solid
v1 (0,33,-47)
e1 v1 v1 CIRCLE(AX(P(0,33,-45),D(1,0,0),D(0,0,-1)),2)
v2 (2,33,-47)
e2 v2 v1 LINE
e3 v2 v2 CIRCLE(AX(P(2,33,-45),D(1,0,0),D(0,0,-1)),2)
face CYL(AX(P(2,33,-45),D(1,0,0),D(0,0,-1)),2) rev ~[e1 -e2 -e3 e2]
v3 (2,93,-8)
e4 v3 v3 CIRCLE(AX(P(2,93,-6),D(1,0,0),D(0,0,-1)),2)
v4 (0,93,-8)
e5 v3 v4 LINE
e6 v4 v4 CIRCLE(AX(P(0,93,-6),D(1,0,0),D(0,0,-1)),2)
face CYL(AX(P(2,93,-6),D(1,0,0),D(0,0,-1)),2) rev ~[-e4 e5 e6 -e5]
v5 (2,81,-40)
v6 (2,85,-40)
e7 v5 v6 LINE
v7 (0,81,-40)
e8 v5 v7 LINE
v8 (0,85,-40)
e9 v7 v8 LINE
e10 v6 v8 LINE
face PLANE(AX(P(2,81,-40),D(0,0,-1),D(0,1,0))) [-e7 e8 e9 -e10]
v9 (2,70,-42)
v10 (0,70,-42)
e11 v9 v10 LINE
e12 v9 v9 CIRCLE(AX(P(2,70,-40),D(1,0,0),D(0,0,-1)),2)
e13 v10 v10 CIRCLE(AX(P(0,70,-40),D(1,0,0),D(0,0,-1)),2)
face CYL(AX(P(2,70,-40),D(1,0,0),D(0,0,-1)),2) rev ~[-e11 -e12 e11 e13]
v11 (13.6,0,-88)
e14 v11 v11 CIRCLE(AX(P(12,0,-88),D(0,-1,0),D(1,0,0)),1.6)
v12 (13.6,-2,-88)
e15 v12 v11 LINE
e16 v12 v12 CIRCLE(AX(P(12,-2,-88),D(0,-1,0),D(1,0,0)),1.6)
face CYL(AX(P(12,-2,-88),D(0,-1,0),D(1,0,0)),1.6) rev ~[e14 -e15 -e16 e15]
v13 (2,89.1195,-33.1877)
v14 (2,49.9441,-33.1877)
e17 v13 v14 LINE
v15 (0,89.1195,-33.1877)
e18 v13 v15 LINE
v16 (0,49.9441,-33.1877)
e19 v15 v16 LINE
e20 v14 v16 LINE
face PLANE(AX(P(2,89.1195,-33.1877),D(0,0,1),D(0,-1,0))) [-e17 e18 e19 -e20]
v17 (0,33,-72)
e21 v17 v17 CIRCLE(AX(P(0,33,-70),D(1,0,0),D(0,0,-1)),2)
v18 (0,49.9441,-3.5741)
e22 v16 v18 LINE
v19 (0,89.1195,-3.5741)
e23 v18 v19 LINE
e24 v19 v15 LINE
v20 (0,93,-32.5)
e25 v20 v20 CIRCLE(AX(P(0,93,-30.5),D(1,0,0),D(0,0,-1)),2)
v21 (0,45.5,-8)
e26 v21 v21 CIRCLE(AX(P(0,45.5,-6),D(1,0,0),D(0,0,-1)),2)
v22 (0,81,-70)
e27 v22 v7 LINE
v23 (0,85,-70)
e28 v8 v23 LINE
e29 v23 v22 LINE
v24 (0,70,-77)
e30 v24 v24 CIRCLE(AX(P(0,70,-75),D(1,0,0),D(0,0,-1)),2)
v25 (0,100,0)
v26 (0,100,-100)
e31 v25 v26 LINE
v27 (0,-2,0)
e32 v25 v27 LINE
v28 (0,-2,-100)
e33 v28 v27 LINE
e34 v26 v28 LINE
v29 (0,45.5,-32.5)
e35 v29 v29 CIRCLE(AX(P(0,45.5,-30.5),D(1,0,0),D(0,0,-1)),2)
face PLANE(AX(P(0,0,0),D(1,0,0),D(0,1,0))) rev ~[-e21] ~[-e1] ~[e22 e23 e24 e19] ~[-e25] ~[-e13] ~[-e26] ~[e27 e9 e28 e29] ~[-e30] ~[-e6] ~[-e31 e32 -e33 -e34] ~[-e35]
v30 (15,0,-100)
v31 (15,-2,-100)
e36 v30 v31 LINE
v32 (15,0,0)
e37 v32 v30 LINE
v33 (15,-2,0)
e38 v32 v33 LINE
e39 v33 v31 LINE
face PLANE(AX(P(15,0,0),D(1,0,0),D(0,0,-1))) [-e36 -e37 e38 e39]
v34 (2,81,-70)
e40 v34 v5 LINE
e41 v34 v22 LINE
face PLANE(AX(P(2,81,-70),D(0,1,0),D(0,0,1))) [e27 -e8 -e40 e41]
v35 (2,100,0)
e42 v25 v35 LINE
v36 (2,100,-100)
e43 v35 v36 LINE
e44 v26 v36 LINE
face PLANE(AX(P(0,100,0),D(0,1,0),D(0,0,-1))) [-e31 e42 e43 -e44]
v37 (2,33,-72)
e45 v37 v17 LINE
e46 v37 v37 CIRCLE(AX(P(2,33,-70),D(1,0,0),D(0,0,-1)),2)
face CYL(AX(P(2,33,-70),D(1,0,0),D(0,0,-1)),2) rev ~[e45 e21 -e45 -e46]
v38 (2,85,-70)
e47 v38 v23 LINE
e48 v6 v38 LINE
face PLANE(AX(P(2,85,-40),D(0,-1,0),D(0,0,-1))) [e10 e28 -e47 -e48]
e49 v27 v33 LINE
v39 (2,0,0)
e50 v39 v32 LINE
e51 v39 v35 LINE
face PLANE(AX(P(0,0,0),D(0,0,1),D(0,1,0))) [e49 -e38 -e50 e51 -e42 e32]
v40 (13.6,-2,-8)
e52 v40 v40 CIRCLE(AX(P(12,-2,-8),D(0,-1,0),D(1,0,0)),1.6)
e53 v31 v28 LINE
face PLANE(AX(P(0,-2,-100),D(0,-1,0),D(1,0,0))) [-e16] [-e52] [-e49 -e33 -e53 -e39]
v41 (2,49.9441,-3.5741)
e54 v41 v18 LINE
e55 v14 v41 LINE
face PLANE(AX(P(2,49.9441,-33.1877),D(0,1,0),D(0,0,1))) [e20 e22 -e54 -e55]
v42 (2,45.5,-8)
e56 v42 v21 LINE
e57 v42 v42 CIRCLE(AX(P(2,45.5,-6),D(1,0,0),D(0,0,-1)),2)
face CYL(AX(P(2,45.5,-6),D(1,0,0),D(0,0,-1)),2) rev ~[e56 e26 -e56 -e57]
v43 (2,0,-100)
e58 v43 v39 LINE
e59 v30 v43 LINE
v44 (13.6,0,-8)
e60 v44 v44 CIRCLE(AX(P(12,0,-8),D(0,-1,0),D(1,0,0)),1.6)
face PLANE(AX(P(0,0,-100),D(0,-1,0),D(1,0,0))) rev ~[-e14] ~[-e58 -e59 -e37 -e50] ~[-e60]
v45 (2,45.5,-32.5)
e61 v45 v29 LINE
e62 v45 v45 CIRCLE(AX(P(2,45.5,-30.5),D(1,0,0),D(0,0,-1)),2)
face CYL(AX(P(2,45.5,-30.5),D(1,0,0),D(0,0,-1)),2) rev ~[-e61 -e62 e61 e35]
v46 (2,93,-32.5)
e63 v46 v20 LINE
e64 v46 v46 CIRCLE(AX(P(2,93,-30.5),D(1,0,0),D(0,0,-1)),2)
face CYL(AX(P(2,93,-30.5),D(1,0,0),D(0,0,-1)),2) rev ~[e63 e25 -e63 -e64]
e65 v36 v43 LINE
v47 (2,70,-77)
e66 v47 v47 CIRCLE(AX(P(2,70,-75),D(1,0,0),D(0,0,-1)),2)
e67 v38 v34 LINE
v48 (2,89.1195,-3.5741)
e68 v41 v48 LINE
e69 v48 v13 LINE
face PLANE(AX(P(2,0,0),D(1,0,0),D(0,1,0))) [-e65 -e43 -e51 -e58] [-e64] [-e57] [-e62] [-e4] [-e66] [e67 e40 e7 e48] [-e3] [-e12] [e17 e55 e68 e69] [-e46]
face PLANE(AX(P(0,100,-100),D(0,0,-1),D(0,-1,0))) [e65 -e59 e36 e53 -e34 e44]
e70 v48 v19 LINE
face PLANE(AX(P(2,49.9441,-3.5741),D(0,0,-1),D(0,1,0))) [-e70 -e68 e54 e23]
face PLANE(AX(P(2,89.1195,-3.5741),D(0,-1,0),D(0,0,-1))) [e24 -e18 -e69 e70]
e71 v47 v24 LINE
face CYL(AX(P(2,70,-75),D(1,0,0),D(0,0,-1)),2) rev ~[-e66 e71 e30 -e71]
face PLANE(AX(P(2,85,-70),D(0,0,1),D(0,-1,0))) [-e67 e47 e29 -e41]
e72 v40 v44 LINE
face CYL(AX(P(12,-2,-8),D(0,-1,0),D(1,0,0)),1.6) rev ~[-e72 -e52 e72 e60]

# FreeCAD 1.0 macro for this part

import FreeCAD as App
import Part
import Sketcher

V = App.Vector
Q = App.Units.Quantity


def add_polygon(sketch, points):
    """Adds a closed chain of lines whose ends are joined by coincident constraints."""
    first, n = sketch.GeometryCount, len(points)
    for a, b in zip(points, points[1:] + points[:1]):
        sketch.addGeometry(Part.LineSegment(App.Vector(*a, 0), App.Vector(*b, 0)), False)
    for i in range(n):
        sketch.addConstraint(Sketcher.Constraint("Coincident", first + i, 2, first + (i + 1) % n, 1))

doc = App.newDocument("Part")
body = doc.addObject("PartDesign::Body", "Body")

# Sketch on YZ plane
sketch1 = body.newObject("Sketcher::SketchObject", "Sketch")
sketch1.AttachmentSupport = (doc.getObject("YZ_Plane"), [""])
sketch1.MapMode = "FlatFace"
add_polygon(sketch1, [(100, 0), (0, 0), (0, -100), (100, -100)])  # lines 0-3
sketch1.addConstraint(Sketcher.Constraint("Horizontal", 0))
sketch1.addConstraint(Sketcher.Constraint("Vertical", 1))
sketch1.addConstraint(Sketcher.Constraint("Horizontal", 2))
sketch1.addConstraint(Sketcher.Constraint("Vertical", 3))
sketch1.addConstraint(Sketcher.Constraint("Coincident", 0, 2, -1, 1))
sketch1.addConstraint(Sketcher.Constraint("Equal", 2, 1))
sketch1.addConstraint(Sketcher.Constraint("DistanceX", 0, 2, 0, 1, Q("100 mm")))
pad1 = body.newObject("PartDesign::Pad", "Pad")
pad1.Profile = sketch1
pad1.Length = 2

# Sketch on XZ plane
sketch2 = body.newObject("Sketcher::SketchObject", "Sketch001")
sketch2.AttachmentSupport = (doc.getObject("XZ_Plane"), [""])
sketch2.MapMode = "FlatFace"
add_polygon(sketch2, [(0, 0), (0, -100), (15, -100), (15, 0)])  # lines 0-3
sketch2.addConstraint(Sketcher.Constraint("Vertical", 0))
sketch2.addConstraint(Sketcher.Constraint("Horizontal", 1))
sketch2.addConstraint(Sketcher.Constraint("Vertical", 2))
sketch2.addConstraint(Sketcher.Constraint("Horizontal", 3))
sketch2.addConstraint(Sketcher.Constraint("Coincident", 3, 2, -1, 1))
sketch2.addConstraint(Sketcher.Constraint("DistanceX", 1, 1, 1, 2, Q("15 mm")))
sketch2.addConstraint(Sketcher.Constraint("DistanceY", 0, 2, 0, 1, Q("100 mm")))
pad2 = body.newObject("PartDesign::Pad", "Pad001")
pad2.Profile = sketch2
pad2.Length = 2

# Sketch on XZ plane
sketch3 = body.newObject("Sketcher::SketchObject", "Sketch002")
sketch3.AttachmentSupport = (doc.getObject("XZ_Plane"), [""])
sketch3.MapMode = "FlatFace"
sketch3.AttachmentOffset = App.Placement(V(0, 0, 2), App.Rotation())
sketch3.addGeometry(Part.Circle(V(12, -8, 0), V(0, 0, 1), 1.6), False)
sketch3.addGeometry(Part.Circle(V(12, -88, 0), V(0, 0, 1), 1.6), False)
sketch3.addConstraint(Sketcher.Constraint("Equal", 0, 1))
sketch3.addConstraint(Sketcher.Constraint("Vertical", 0, 3, 1, 3))
sketch3.addConstraint(Sketcher.Constraint("Diameter", 0, Q("3.2 mm")))
sketch3.addConstraint(Sketcher.Constraint("DistanceX", -1, 1, 0, 3, Q("12 mm")))
sketch3.addConstraint(Sketcher.Constraint("DistanceY", 1, 3, 0, 3, Q("80 mm")))
sketch3.addConstraint(Sketcher.Constraint("DistanceY", 0, 3, -1, 1, Q("8 mm")))
pocket1 = body.newObject("PartDesign::Pocket", "Pocket")
pocket1.Profile = sketch3
pocket1.Length = 2

# Sketch on YZ plane
sketch4 = body.newObject("Sketcher::SketchObject", "Sketch003")
sketch4.AttachmentSupport = (doc.getObject("YZ_Plane"), [""])
sketch4.MapMode = "FlatFace"
sketch4.AttachmentOffset = App.Placement(V(0, 0, 2), App.Rotation())
add_polygon(sketch4, [(85, -70), (85, -40), (81, -40), (81, -70)])  # lines 0-3
sketch4.addGeometry(Part.Circle(V(70, -40, 0), V(0, 0, 1), 2), False)  # 4
sketch4.addGeometry(Part.Circle(V(70, -75, 0), V(0, 0, 1), 2), False)  # 5
sketch4.addGeometry(Part.Circle(V(33, -70, 0), V(0, 0, 1), 2), False)  # 6
sketch4.addGeometry(Part.Circle(V(33, -45, 0), V(0, 0, 1), 2), False)  # 7
sketch4.addConstraint(Sketcher.Constraint("Vertical", 0))
sketch4.addConstraint(Sketcher.Constraint("Horizontal", 1))
sketch4.addConstraint(Sketcher.Constraint("Vertical", 2))
sketch4.addConstraint(Sketcher.Constraint("Horizontal", 3))
sketch4.addConstraint(Sketcher.Constraint("Equal", 4, 5))
sketch4.addConstraint(Sketcher.Constraint("Equal", 5, 6))
sketch4.addConstraint(Sketcher.Constraint("Equal", 6, 7))
sketch4.addConstraint(Sketcher.Constraint("Horizontal", 4, 3, 0, 2))
sketch4.addConstraint(Sketcher.Constraint("Horizontal", 6, 3, 2, 2))
sketch4.addConstraint(Sketcher.Constraint("Vertical", 4, 3, 5, 3))
sketch4.addConstraint(Sketcher.Constraint("Vertical", 6, 3, 7, 3))
sketch4.addConstraint(Sketcher.Constraint("Diameter", 4, Q("4 mm")))
sketch4.addConstraint(Sketcher.Constraint("DistanceX", 1, 2, 1, 1, Q("4 mm")))
sketch4.addConstraint(Sketcher.Constraint("DistanceY", 0, 1, 0, 2, Q("30 mm")))
sketch4.addConstraint(Sketcher.Constraint("DistanceY", 4, 3, -1, 1, Q("40 mm")))
sketch4.addConstraint(Sketcher.Constraint("DistanceY", 5, 3, 4, 3, Q("35 mm")))
sketch4.addConstraint(Sketcher.Constraint("DistanceX", 6, 3, 5, 3, Q("37 mm")))
sketch4.addConstraint(Sketcher.Constraint("DistanceY", 6, 3, 7, 3, Q("25 mm")))
sketch4.addConstraint(Sketcher.Constraint("DistanceX", 4, 3, 0, 2, Q("15 mm")))
sketch4.addConstraint(Sketcher.Constraint("DistanceX", -1, 1, 4, 3, Q("70 mm")))
pocket2 = body.newObject("PartDesign::Pocket", "Pocket001")
pocket2.Profile = sketch4
pocket2.Length = 2

# Sketch on YZ plane
sketch5 = body.newObject("Sketcher::SketchObject", "Sketch004")
sketch5.AttachmentSupport = (doc.getObject("YZ_Plane"), [""])
sketch5.MapMode = "FlatFace"
sketch5.AttachmentOffset = App.Placement(V(0, 0, 2), App.Rotation())
add_polygon(sketch5, [(89, -33), (89, -4), (50, -4), (50, -33)])  # lines 0-3
sketch5.addConstraint(Sketcher.Constraint("Vertical", 0))
sketch5.addConstraint(Sketcher.Constraint("Horizontal", 1))
sketch5.addConstraint(Sketcher.Constraint("Vertical", 2))
sketch5.addConstraint(Sketcher.Constraint("Horizontal", 3))
sketch5.addConstraint(Sketcher.Constraint("DistanceX", 1, 2, 1, 1, Q("39.1754 mm")))
sketch5.addConstraint(Sketcher.Constraint("DistanceY", 0, 1, 0, 2, Q("29.6136 mm")))
sketch5.addConstraint(Sketcher.Constraint("DistanceY", 0, 2, -1, 1, Q("3.574 mm")))
sketch5.addConstraint(Sketcher.Constraint("DistanceX", -1, 1, 1, 2, Q("49.944 mm")))
pocket3 = body.newObject("PartDesign::Pocket", "Pocket002")
pocket3.Profile = sketch5
pocket3.Length = 2

# Sketch on YZ plane
sketch6 = body.newObject("Sketcher::SketchObject", "Sketch005")
sketch6.AttachmentSupport = (doc.getObject("YZ_Plane"), [""])
sketch6.MapMode = "FlatFace"
sketch6.AttachmentOffset = App.Placement(V(0, 0, 2), App.Rotation())
sketch6.addGeometry(Part.Circle(V(93, -6, 0), V(0, 0, 1), 2), False)
sketch6.addGeometry(Part.Circle(V(93, -30.5, 0), V(0, 0, 1), 2), False)
sketch6.addGeometry(Part.Circle(V(45.5, -6, 0), V(0, 0, 1), 2), False)
sketch6.addGeometry(Part.Circle(V(45.5, -30.5, 0), V(0, 0, 1), 2), False)
sketch6.addConstraint(Sketcher.Constraint("Equal", 0, 1))
sketch6.addConstraint(Sketcher.Constraint("Equal", 1, 2))
sketch6.addConstraint(Sketcher.Constraint("Equal", 2, 3))
sketch6.addConstraint(Sketcher.Constraint("Horizontal", 0, 3, 2, 3))
sketch6.addConstraint(Sketcher.Constraint("Horizontal", 1, 3, 3, 3))
sketch6.addConstraint(Sketcher.Constraint("Vertical", 0, 3, 1, 3))
sketch6.addConstraint(Sketcher.Constraint("Vertical", 2, 3, 3, 3))
sketch6.addConstraint(Sketcher.Constraint("Diameter", 0, Q("4 mm")))
sketch6.addConstraint(Sketcher.Constraint("DistanceY", 0, 3, -1, 1, Q("6 mm")))
sketch6.addConstraint(Sketcher.Constraint("DistanceY", 1, 3, 0, 3, Q("24.5 mm")))
sketch6.addConstraint(Sketcher.Constraint("DistanceX", 2, 3, 0, 3, Q("47.5 mm")))
sketch6.addConstraint(Sketcher.Constraint("DistanceX", -1, 1, 0, 3, Q("93 mm")))
pocket4 = body.newObject("PartDesign::Pocket", "Pocket003")
pocket4.Profile = sketch6
pocket4.Length = 2

doc.recompute()
